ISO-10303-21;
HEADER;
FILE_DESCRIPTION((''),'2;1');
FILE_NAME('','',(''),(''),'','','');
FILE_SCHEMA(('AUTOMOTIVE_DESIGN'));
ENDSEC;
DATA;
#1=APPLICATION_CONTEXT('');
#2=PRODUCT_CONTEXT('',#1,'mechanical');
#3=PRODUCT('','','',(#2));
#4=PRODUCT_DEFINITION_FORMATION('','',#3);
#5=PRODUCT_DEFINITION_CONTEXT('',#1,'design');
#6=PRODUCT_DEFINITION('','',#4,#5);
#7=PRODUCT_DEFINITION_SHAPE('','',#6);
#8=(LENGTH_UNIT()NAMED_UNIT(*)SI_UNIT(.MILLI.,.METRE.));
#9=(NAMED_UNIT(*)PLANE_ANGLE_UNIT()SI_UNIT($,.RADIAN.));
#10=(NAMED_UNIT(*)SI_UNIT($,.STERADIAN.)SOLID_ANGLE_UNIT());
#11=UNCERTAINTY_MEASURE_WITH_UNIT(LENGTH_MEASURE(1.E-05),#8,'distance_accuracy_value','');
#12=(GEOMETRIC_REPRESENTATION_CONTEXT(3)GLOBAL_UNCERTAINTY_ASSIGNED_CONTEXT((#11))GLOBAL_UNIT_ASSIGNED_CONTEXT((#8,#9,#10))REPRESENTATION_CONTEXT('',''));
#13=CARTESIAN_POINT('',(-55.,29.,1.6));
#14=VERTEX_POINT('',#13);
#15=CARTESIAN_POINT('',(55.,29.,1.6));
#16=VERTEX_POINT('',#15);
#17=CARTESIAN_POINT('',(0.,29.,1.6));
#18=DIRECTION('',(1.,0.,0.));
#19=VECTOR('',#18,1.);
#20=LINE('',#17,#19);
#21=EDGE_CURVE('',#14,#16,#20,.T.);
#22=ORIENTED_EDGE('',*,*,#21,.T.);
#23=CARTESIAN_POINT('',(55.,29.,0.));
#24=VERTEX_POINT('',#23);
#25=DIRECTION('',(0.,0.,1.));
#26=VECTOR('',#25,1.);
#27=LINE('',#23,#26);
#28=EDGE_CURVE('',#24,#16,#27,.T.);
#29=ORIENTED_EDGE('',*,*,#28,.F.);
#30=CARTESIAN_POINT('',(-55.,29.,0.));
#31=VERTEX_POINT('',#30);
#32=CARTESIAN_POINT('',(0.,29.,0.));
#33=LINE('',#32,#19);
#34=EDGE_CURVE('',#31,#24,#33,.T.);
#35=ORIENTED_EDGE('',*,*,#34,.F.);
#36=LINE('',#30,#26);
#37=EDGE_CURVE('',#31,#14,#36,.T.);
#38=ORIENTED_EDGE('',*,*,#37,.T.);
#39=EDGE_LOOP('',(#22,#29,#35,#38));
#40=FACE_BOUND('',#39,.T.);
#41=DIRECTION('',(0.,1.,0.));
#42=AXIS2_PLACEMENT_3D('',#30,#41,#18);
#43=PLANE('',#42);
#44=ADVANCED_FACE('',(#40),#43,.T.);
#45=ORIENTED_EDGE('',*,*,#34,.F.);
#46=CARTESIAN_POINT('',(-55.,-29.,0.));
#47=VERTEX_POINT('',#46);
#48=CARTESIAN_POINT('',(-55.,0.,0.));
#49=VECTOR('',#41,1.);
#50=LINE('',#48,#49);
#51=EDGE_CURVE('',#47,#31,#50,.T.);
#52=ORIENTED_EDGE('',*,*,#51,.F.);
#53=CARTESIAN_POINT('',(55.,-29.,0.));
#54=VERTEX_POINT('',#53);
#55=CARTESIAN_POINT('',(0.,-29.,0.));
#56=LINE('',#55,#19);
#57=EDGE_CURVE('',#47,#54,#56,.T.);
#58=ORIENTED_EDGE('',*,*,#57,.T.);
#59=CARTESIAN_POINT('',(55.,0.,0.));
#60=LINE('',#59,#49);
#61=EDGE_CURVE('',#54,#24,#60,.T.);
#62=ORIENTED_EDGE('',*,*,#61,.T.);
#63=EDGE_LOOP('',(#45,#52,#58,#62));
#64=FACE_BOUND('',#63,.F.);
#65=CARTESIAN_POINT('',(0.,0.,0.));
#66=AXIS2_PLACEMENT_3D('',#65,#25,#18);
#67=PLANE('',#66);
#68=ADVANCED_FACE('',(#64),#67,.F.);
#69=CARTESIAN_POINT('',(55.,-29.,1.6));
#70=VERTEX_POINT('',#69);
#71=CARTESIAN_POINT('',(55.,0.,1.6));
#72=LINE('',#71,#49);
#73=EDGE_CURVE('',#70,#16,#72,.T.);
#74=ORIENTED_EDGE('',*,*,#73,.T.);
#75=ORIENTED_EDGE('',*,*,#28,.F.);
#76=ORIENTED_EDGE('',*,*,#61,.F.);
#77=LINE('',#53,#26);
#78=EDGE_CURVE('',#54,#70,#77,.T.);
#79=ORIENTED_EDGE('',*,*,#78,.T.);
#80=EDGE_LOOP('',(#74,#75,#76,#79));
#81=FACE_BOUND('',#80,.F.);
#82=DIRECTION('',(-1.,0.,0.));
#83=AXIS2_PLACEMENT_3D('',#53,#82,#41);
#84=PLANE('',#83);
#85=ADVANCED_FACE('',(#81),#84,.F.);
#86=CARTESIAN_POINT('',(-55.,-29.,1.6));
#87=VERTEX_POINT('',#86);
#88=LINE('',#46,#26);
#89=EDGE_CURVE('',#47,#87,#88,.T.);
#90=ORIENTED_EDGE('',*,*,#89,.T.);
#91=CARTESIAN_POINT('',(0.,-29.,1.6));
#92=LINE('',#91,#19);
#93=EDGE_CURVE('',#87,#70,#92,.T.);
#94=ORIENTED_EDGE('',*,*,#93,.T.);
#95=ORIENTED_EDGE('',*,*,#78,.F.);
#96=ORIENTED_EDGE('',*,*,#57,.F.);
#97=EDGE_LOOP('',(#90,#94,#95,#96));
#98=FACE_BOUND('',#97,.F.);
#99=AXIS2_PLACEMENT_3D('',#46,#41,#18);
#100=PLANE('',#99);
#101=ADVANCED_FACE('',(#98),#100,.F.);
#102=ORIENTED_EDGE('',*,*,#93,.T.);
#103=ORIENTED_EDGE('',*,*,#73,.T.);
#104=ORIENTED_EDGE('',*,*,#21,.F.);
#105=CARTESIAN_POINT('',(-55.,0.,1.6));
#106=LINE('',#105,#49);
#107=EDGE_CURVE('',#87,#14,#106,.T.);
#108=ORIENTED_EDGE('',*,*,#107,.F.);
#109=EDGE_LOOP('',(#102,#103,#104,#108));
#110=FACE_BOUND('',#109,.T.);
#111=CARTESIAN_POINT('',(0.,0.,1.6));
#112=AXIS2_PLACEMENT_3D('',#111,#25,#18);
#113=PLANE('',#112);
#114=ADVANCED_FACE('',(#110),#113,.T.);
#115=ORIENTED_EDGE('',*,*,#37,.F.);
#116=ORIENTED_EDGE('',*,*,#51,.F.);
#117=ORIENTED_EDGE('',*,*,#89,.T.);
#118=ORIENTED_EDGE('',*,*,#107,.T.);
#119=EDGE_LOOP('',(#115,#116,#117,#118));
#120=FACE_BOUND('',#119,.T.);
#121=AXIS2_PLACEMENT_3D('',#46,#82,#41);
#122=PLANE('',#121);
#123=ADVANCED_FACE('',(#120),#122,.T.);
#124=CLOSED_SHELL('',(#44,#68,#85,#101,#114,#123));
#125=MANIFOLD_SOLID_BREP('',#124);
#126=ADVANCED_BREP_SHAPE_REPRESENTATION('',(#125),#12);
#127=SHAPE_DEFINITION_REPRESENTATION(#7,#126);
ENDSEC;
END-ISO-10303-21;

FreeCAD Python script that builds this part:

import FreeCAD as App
import Part
import Sketcher

V = App.Vector
Q = App.Units.Quantity


def add_polygon(sketch, points):
    """Adds a closed chain of lines whose ends are joined by coincident constraints."""
    first, n = sketch.GeometryCount, len(points)
    for a, b in zip(points, points[1:] + points[:1]):
        sketch.addGeometry(Part.LineSegment(App.Vector(*a, 0), App.Vector(*b, 0)), False)
    for i in range(n):
        sketch.addConstraint(Sketcher.Constraint("Coincident", first + i, 2, first + (i + 1) % n, 1))

doc = App.newDocument("Part")
body = doc.addObject("PartDesign::Body", "Body")

# Sketch on XY plane
sketch1 = body.newObject("Sketcher::SketchObject", "Sketch")
sketch1.AttachmentSupport = (doc.getObject("XY_Plane"), [""])
sketch1.MapMode = "FlatFace"
add_polygon(sketch1, [(-55, 29), (-55, -29), (55, -29), (55, 29)])  # lines 0-3
sketch1.addConstraint([
    Sketcher.Constraint("Vertical", 0),
    Sketcher.Constraint("Horizontal", 1),
    Sketcher.Constraint("Vertical", 2),
    Sketcher.Constraint("Horizontal", 3),
    Sketcher.Constraint("Symmetric", 0, 2, 2, 2, -1, 1),
    Sketcher.Constraint("DistanceX", 1, 1, 1, 2, Q("110 mm")),
    Sketcher.Constraint("DistanceY", 0, 2, 0, 1, Q("58 mm")),
])
pad1 = body.newObject("PartDesign::Pad", "Pad")
pad1.Profile = sketch1
pad1.Length = 1.6

doc.recompute()
